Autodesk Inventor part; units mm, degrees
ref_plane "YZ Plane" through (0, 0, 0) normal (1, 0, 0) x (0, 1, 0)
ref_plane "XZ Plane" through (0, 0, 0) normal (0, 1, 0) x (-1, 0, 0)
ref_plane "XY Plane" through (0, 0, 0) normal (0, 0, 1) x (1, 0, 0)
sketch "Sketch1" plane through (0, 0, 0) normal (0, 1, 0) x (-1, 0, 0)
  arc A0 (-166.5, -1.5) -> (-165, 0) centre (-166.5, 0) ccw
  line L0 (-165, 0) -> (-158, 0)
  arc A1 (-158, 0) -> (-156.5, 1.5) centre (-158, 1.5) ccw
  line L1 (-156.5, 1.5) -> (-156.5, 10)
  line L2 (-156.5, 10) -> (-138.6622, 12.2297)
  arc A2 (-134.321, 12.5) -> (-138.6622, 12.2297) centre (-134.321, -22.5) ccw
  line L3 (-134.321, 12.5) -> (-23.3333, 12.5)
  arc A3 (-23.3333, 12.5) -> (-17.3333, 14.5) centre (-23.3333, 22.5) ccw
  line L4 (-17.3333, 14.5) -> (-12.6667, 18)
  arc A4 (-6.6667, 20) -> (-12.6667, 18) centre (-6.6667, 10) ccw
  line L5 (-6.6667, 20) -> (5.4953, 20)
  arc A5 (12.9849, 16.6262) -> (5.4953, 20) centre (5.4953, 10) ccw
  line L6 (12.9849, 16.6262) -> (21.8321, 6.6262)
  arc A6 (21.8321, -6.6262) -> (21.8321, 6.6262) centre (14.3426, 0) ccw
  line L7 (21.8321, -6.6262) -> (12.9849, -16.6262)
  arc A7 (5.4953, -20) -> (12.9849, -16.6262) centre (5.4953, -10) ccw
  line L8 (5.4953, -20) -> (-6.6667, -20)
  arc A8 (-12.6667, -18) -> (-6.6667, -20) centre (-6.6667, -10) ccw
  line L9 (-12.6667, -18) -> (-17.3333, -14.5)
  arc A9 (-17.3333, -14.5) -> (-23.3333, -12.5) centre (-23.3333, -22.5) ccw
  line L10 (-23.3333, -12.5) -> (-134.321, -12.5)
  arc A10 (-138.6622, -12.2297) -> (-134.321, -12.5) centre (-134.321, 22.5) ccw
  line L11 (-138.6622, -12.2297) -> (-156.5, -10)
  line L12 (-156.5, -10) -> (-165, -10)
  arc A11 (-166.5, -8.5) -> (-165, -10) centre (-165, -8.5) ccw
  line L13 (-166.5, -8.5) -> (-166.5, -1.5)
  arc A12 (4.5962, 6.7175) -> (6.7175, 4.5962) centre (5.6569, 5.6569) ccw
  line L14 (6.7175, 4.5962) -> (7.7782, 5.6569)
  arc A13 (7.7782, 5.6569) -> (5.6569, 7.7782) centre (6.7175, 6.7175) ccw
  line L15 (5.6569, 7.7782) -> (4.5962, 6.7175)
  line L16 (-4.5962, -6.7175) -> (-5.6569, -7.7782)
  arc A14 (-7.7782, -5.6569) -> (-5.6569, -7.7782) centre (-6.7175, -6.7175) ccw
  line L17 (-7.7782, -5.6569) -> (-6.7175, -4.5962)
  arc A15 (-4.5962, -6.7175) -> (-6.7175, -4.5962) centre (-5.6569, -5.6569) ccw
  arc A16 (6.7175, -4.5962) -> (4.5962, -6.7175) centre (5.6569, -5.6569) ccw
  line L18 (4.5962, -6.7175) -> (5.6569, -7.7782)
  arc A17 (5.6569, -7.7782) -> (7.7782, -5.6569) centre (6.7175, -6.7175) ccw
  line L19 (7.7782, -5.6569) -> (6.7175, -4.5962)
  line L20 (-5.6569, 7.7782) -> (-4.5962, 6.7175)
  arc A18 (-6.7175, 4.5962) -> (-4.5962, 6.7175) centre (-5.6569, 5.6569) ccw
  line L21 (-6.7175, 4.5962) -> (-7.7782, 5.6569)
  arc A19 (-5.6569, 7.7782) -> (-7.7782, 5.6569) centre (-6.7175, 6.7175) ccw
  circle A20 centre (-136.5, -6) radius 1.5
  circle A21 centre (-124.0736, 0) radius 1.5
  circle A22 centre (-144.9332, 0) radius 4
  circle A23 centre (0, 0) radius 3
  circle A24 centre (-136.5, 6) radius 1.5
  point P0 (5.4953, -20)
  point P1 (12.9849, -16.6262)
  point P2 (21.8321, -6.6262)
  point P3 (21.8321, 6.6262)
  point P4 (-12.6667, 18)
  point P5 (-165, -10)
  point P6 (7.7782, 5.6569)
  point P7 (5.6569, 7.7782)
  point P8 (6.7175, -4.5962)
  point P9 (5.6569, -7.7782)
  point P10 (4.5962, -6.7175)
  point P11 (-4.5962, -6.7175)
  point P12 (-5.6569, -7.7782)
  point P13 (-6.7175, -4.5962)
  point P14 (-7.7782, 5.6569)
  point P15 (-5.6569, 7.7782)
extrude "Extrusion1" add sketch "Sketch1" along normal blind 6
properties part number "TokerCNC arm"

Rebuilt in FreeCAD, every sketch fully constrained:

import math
import FreeCAD as App
import Part
import Sketcher
from FreeCAD import Vector

doc = App.newDocument("Part")
body = doc.addObject("PartDesign::Body", "Body")

sketch1 = body.newObject("Sketcher::SketchObject", "Sketch")
sketch1.AttachmentSupport = (doc.getObject("XZ_Plane"), [""])
sketch1.MapMode = "FlatFace"
sketch1.addGeometry([
    Part.ArcOfCircle(Part.Circle(Vector(166.5, 0, 0), Vector(0, 0, 1), 1.5), math.radians(180), math.radians(270)),
    Part.LineSegment(Vector(166.5, -1.5, 0), Vector(166.5, -8.5, 0)),
    Part.ArcOfCircle(Part.Circle(Vector(165, -8.5, 0), Vector(0, 0, 1), 1.5), math.radians(-90), math.radians(0)),
    Part.LineSegment(Vector(165, -10, 0), Vector(156.5, -10, 0)),
    Part.LineSegment(Vector(156.5, -10, 0), Vector(138.6622, -12.2297, 0)),
    Part.ArcOfCircle(Part.Circle(Vector(134.320338, 22.507073, 0), Vector(0, 0, 1), 35.007073), math.radians(-89.998917), math.radians(-82.875365)),
    Part.LineSegment(Vector(134.321, -12.5, 0), Vector(23.3333, -12.5, 0)),
    Part.ArcOfCircle(Part.Circle(Vector(23.3333, -22.5, 0), Vector(0, 0, 1), 10), math.radians(90), math.radians(126.869898)),
    Part.LineSegment(Vector(17.3333, -14.5, 0), Vector(12.6667, -18, 0)),
    Part.ArcOfCircle(Part.Circle(Vector(6.6667, -10, 0), Vector(0, 0, 1), 10), math.radians(-90), math.radians(-53.130102)),
    Part.LineSegment(Vector(6.6667, -20, 0), Vector(-5.4953, -20, 0)),
    Part.ArcOfCircle(Part.Circle(Vector(-5.4953, -10, 0), Vector(0, 0, 1), 10), math.radians(-138.500165), math.radians(-90)),
    Part.LineSegment(Vector(-12.9849, -16.6262, 0), Vector(-21.8321, -6.6262, 0)),
    Part.ArcOfCircle(Part.Circle(Vector(-14.3426, 0, 0), Vector(0, 0, 1), 9.999957), math.radians(138.499785), math.radians(221.500215)),
    Part.LineSegment(Vector(-21.8321, 6.6262, 0), Vector(-12.9849, 16.6262, 0)),
    Part.ArcOfCircle(Part.Circle(Vector(-5.4953, 10, 0), Vector(0, 0, 1), 10.000032), math.radians(90), math.radians(138.500165)),
    Part.LineSegment(Vector(-5.4953, 20, 0), Vector(6.6667, 20, 0)),
    Part.ArcOfCircle(Part.Circle(Vector(6.6667, 10, 0), Vector(0, 0, 1), 10), math.radians(53.130102), math.radians(90)),
    Part.LineSegment(Vector(12.6667, 18, 0), Vector(17.3333, 14.5, 0)),
    Part.ArcOfCircle(Part.Circle(Vector(23.3333, 22.5, 0), Vector(0, 0, 1), 10), math.radians(-126.869898), math.radians(-90)),
    Part.LineSegment(Vector(23.3333, 12.5, 0), Vector(134.321, 12.5, 0)),
    Part.ArcOfCircle(Part.Circle(Vector(134.321221, -22.492903, 0), Vector(0, 0, 1), 34.992903), math.radians(82.873921), math.radians(90.000361)),
    Part.LineSegment(Vector(138.6622, 12.2297, 0), Vector(156.5, 10, 0)),
    Part.LineSegment(Vector(156.5, 10, 0), Vector(156.5, 1.5, 0)),
    Part.ArcOfCircle(Part.Circle(Vector(158, 1.5, 0), Vector(0, 0, 1), 1.5), math.radians(180), math.radians(270)),
    Part.LineSegment(Vector(158, 0, 0), Vector(165, 0, 0)),
    Part.Circle(Vector(136.5, -6, 0), Vector(0, 0, 1), 1.5),
    Part.Circle(Vector(144.9332, 0, 0), Vector(0, 0, 1), 4),
    Part.Circle(Vector(124.0736, 0, 0), Vector(0, 0, 1), 1.5),
    Part.ArcOfCircle(Part.Circle(Vector(5.6569, -5.6569, 0), Vector(0, 0, 1), 1.499986), math.radians(45.002701), math.radians(224.997299)),
    Part.LineSegment(Vector(4.5962, -6.7175, 0), Vector(5.6569, -7.7782, 0)),
    Part.ArcOfCircle(Part.Circle(Vector(6.7175, -6.7175, 0), Vector(0, 0, 1), 1.499986), math.radians(-134.997299), math.radians(44.997299)),
    Part.LineSegment(Vector(7.7782, -5.6569, 0), Vector(6.7175, -4.5962, 0)),
    Part.ArcOfCircle(Part.Circle(Vector(-5.6569, -5.6569, 0), Vector(0, 0, 1), 1.499986), math.radians(-44.997299), math.radians(134.997299)),
    Part.LineSegment(Vector(-6.7175, -4.5962, 0), Vector(-7.7782, -5.6569, 0)),
    Part.ArcOfCircle(Part.Circle(Vector(-6.7175, -6.7175, 0), Vector(0, 0, 1), 1.499986), math.radians(135.002701), math.radians(314.997299)),
    Part.LineSegment(Vector(-5.6569, -7.7782, 0), Vector(-4.5962, -6.7175, 0)),
    Part.Circle(Vector(0, 0, 0), Vector(0, 0, 1), 3),
    Part.Circle(Vector(136.5, 6, 0), Vector(0, 0, 1), 1.5),
    Part.ArcOfCircle(Part.Circle(Vector(6.7175, 6.7175, 0), Vector(0, 0, 1), 1.499986), math.radians(-44.997299), math.radians(134.997299)),
    Part.LineSegment(Vector(5.6569, 7.7782, 0), Vector(4.5962, 6.7175, 0)),
    Part.ArcOfCircle(Part.Circle(Vector(5.6569, 5.6569, 0), Vector(0, 0, 1), 1.499986), math.radians(135.002701), math.radians(314.997299)),
    Part.LineSegment(Vector(6.7175, 4.5962, 0), Vector(7.7782, 5.6569, 0)),
    Part.ArcOfCircle(Part.Circle(Vector(-5.6569, 5.6569, 0), Vector(0, 0, 1), 1.499986), math.radians(-134.997299), math.radians(44.997299)),
    Part.LineSegment(Vector(-4.5962, 6.7175, 0), Vector(-5.6569, 7.7782, 0)),
    Part.ArcOfCircle(Part.Circle(Vector(-6.7175, 6.7175, 0), Vector(0, 0, 1), 1.499986), math.radians(45.002701), math.radians(224.997299)),
    Part.LineSegment(Vector(-7.7782, 5.6569, 0), Vector(-6.7175, 4.5962, 0)),
], False)
sketch1.addConstraint([
    Sketcher.Constraint("Coincident", 0, 2, 1, 1),
    Sketcher.Constraint("Coincident", 1, 2, 2, 2),
    Sketcher.Constraint("Coincident", 2, 1, 3, 1),
    Sketcher.Constraint("Coincident", 3, 2, 4, 1),
    Sketcher.Constraint("Coincident", 4, 2, 5, 2),
    Sketcher.Constraint("Coincident", 5, 1, 6, 1),
    Sketcher.Constraint("Coincident", 6, 2, 7, 1),
    Sketcher.Constraint("Coincident", 7, 2, 8, 1),
    Sketcher.Constraint("Coincident", 8, 2, 9, 2),
    Sketcher.Constraint("Coincident", 9, 1, 10, 1),
    Sketcher.Constraint("Coincident", 10, 2, 11, 2),
    Sketcher.Constraint("Coincident", 11, 1, 12, 1),
    Sketcher.Constraint("Coincident", 12, 2, 13, 2),
    Sketcher.Constraint("Coincident", 13, 1, 14, 1),
    Sketcher.Constraint("Coincident", 14, 2, 15, 2),
    Sketcher.Constraint("Coincident", 15, 1, 16, 1),
    Sketcher.Constraint("Coincident", 16, 2, 17, 2),
    Sketcher.Constraint("Coincident", 17, 1, 18, 1),
    Sketcher.Constraint("Coincident", 18, 2, 19, 1),
    Sketcher.Constraint("Coincident", 19, 2, 20, 1),
    Sketcher.Constraint("Coincident", 20, 2, 21, 2),
    Sketcher.Constraint("Coincident", 21, 1, 22, 1),
    Sketcher.Constraint("Coincident", 22, 2, 23, 1),
    Sketcher.Constraint("Coincident", 23, 2, 24, 1),
    Sketcher.Constraint("Coincident", 24, 2, 25, 1),
    Sketcher.Constraint("Coincident", 25, 2, 0, 1),
    Sketcher.Constraint("Coincident", 29, 2, 30, 1),
    Sketcher.Constraint("Coincident", 30, 2, 31, 1),
    Sketcher.Constraint("Coincident", 31, 2, 32, 1),
    Sketcher.Constraint("Coincident", 32, 2, 29, 1),
    Sketcher.Constraint("Coincident", 33, 2, 34, 1),
    Sketcher.Constraint("Coincident", 34, 2, 35, 1),
    Sketcher.Constraint("Coincident", 35, 2, 36, 1),
    Sketcher.Constraint("Coincident", 36, 2, 33, 1),
    Sketcher.Constraint("Coincident", 39, 2, 40, 1),
    Sketcher.Constraint("Coincident", 40, 2, 41, 1),
    Sketcher.Constraint("Coincident", 41, 2, 42, 1),
    Sketcher.Constraint("Coincident", 42, 2, 39, 1),
    Sketcher.Constraint("Coincident", 43, 2, 44, 1),
    Sketcher.Constraint("Coincident", 44, 2, 45, 1),
    Sketcher.Constraint("Coincident", 45, 2, 46, 1),
    Sketcher.Constraint("Coincident", 46, 2, 43, 1),
    Sketcher.Constraint("Vertical", 1),
    Sketcher.Constraint("Horizontal", 3),
    Sketcher.Constraint("Horizontal", 6),
    Sketcher.Constraint("Horizontal", 10),
    Sketcher.Constraint("Horizontal", 16),
    Sketcher.Constraint("Horizontal", 20),
    Sketcher.Constraint("Vertical", 23),
    Sketcher.Constraint("Horizontal", 25),
    Sketcher.Constraint("Coincident", 37, 3, -1, 1),
    Sketcher.Constraint("PointOnObject", 0, 3, -1),
    Sketcher.Constraint("PointOnObject", 13, 3, -1),
    Sketcher.Constraint("PointOnObject", 27, 3, -1),
    Sketcher.Constraint("PointOnObject", 28, 3, -1),
    Sketcher.Constraint("PointOnObject", 24, 2, -1),
    Sketcher.Constraint("Diameter", 26, 3.0),
    Sketcher.Constraint("Diameter", 27, 8.0),
    Sketcher.Constraint("Diameter", 28, 3.0),
    Sketcher.Constraint("Diameter", 37, 6.0),
    Sketcher.Constraint("Diameter", 38, 3.0),
    Sketcher.Constraint("Radius", 7, 10.0),
    Sketcher.Constraint("Radius", 9, 10.0),
    Sketcher.Constraint("Radius", 11, 10.0),
    Sketcher.Constraint("Radius", 13, 10.0),
    Sketcher.Constraint("Radius", 15, 10.0),
    Sketcher.Constraint("Radius", 17, 10.0),
    Sketcher.Constraint("Radius", 19, 10.0),
    Sketcher.Constraint("Radius", 0, 1.5),
    Sketcher.Constraint("Radius", 2, 1.5),
    Sketcher.Constraint("Radius", 24, 1.5),
    Sketcher.Constraint("Radius", 29, 1.5),
    Sketcher.Constraint("Radius", 31, 1.5),
    Sketcher.Constraint("Radius", 33, 1.5),
    Sketcher.Constraint("Radius", 35, 1.5),
    Sketcher.Constraint("Radius", 39, 1.5),
    Sketcher.Constraint("Radius", 41, 1.5),
    Sketcher.Constraint("Radius", 43, 1.5),
    Sketcher.Constraint("Radius", 45, 1.5),
    Sketcher.Constraint("DistanceX", 25, 1, 25, 2, 7.0),
    Sketcher.Constraint("DistanceY", 1, 2, 1, 1, 7.0),
    Sketcher.Constraint("DistanceX", 3, 2, 3, 1, 8.5),
    Sketcher.Constraint("DistanceY", 23, 2, 23, 1, 8.5),
    Sketcher.Constraint("DistanceX", -1, 1, 2, 3, 165.0),
    Sketcher.Constraint("DistanceY", 9, 3, -1, 1, 10.0),
    Sketcher.Constraint("DistanceY", -1, 1, 15, 3, 10.0),
    Sketcher.Constraint("DistanceX", -1, 1, 24, 3, 158.0),
    Sketcher.Constraint("DistanceY", 26, 3, -1, 1, 6.0),
    Sketcher.Constraint("DistanceY", -1, 1, 38, 3, 6.0),
    Sketcher.Constraint("DistanceX", -1, 1, 2, 1, 165.0),
    Sketcher.Constraint("DistanceY", 2, 1, -1, 1, 10.0),
    Sketcher.Constraint("DistanceY", 8, 2, -1, 1, 18.0),
    Sketcher.Constraint("DistanceY", -1, 1, 17, 1, 18.0),
    Sketcher.Constraint("DistanceY", -1, 1, 22, 2, 10.0),
    Sketcher.Constraint("DistanceX", -1, 1, 24, 2, 158.0),
    Sketcher.Constraint("Radius", 5, 35.007),
    Sketcher.Constraint("Radius", 21, 34.993),
    Sketcher.Constraint("Distance", 30, 1.5),
    Sketcher.Constraint("Distance", 32, 1.5),
    Sketcher.Constraint("Distance", 34, 1.5),
    Sketcher.Constraint("Distance", 36, 1.5),
    Sketcher.Constraint("Distance", 40, 1.5),
    Sketcher.Constraint("Distance", 42, 1.5),
    Sketcher.Constraint("Distance", 44, 1.5),
    Sketcher.Constraint("Distance", 46, 1.5),
    Sketcher.Constraint("DistanceY", 7, 3, -1, 1, 22.5),
    Sketcher.Constraint("DistanceY", -1, 1, 19, 3, 22.5),
    Sketcher.Constraint("DistanceX", -1, 1, 26, 3, 136.5),
    Sketcher.Constraint("DistanceX", -1, 1, 38, 3, 136.5),
    Sketcher.Constraint("DistanceY", 7, 2, -1, 1, 14.5),
    Sketcher.Constraint("DistanceY", -1, 1, 18, 2, 14.5),
    Sketcher.Constraint("DistanceX", 10, 2, 10, 1, 12.162),
    Sketcher.Constraint("DistanceX", 16, 1, 16, 2, 12.162),
    Sketcher.Constraint("Distance", 12, 13.352),
    Sketcher.Constraint("Distance", 14, 13.352),
    Sketcher.Constraint("DistanceX", 6, 2, 6, 1, 110.9877),
    Sketcher.Constraint("DistanceX", 20, 1, 20, 2, 110.9877),
    Sketcher.Constraint("DistanceX", -1, 1, 29, 3, 5.657),
    Sketcher.Constraint("DistanceY", 29, 3, -1, 1, 5.657),
    Sketcher.Constraint("DistanceX", 33, 3, -1, 1, 5.657),
    Sketcher.Constraint("DistanceY", 33, 3, -1, 1, 5.657),
    Sketcher.Constraint("DistanceX", -1, 1, 41, 3, 5.657),
    Sketcher.Constraint("DistanceY", -1, 1, 41, 3, 5.657),
    Sketcher.Constraint("DistanceX", 43, 3, -1, 1, 5.657),
    Sketcher.Constraint("DistanceY", -1, 1, 43, 3, 5.657),
    Sketcher.Constraint("DistanceX", -1, 1, 5, 1, 134.321),
    Sketcher.Constraint("DistanceX", 12, 2, -1, 1, 21.832),
    Sketcher.Constraint("DistanceX", 13, 1, -1, 1, 21.832),
    Sketcher.Constraint("DistanceX", 14, 2, -1, 1, 12.985),
    Sketcher.Constraint("DistanceX", -1, 1, 20, 2, 134.321),
    Sketcher.Constraint("DistanceX", -1, 1, 30, 2, 5.657),
    Sketcher.Constraint("DistanceY", 31, 2, -1, 1, 5.657),
    Sketcher.Constraint("DistanceY", 34, 2, -1, 1, 5.657),
    Sketcher.Constraint("DistanceX", 35, 2, -1, 1, 5.657),
    Sketcher.Constraint("DistanceX", -1, 1, 39, 2, 5.657),
    Sketcher.Constraint("DistanceY", -1, 1, 42, 2, 5.657),
    Sketcher.Constraint("DistanceX", 44, 2, -1, 1, 5.657),
    Sketcher.Constraint("DistanceY", -1, 1, 45, 2, 5.657),
    Sketcher.Constraint("Distance", 4, 17.9766),
    Sketcher.Constraint("Distance", 8, 5.8333),
    Sketcher.Constraint("Distance", 18, 5.8333),
    Sketcher.Constraint("Distance", 22, 17.9766),
    Sketcher.Constraint("DistanceX", -1, 1, 5, 3, 134.3203),
    Sketcher.Constraint("DistanceX", -1, 1, 7, 3, 23.3333),
    Sketcher.Constraint("DistanceX", 11, 3, -1, 1, 5.4953),
    Sketcher.Constraint("DistanceX", 13, 3, -1, 1, 14.3426),
    Sketcher.Constraint("DistanceX", -1, 1, 17, 3, 6.6667),
    Sketcher.Constraint("DistanceX", -1, 1, 21, 3, 134.3212),
    Sketcher.Constraint("DistanceX", -1, 1, 27, 3, 144.9332),
    Sketcher.Constraint("DistanceX", -1, 1, 28, 3, 124.0736),
    Sketcher.Constraint("DistanceX", -1, 1, 31, 3, 6.7175),
    Sketcher.Constraint("DistanceY", 31, 3, -1, 1, 6.7175),
    Sketcher.Constraint("DistanceX", 35, 3, -1, 1, 6.7175),
    Sketcher.Constraint("DistanceY", 35, 3, -1, 1, 6.7175),
    Sketcher.Constraint("DistanceX", -1, 1, 39, 3, 6.7175),
    Sketcher.Constraint("DistanceY", -1, 1, 39, 3, 6.7175),
    Sketcher.Constraint("DistanceX", 45, 3, -1, 1, 6.7175),
    Sketcher.Constraint("DistanceY", -1, 1, 45, 3, 6.7175),
    Sketcher.Constraint("DistanceX", -1, 1, 9, 1, 6.6667),
    Sketcher.Constraint("DistanceX", 15, 1, -1, 1, 5.4953),
])
pad1 = body.newObject("PartDesign::Pad", "Pad")
pad1.Profile = sketch1
pad1.Length = 6
pad1.Reversed = True

doc.recompute()
